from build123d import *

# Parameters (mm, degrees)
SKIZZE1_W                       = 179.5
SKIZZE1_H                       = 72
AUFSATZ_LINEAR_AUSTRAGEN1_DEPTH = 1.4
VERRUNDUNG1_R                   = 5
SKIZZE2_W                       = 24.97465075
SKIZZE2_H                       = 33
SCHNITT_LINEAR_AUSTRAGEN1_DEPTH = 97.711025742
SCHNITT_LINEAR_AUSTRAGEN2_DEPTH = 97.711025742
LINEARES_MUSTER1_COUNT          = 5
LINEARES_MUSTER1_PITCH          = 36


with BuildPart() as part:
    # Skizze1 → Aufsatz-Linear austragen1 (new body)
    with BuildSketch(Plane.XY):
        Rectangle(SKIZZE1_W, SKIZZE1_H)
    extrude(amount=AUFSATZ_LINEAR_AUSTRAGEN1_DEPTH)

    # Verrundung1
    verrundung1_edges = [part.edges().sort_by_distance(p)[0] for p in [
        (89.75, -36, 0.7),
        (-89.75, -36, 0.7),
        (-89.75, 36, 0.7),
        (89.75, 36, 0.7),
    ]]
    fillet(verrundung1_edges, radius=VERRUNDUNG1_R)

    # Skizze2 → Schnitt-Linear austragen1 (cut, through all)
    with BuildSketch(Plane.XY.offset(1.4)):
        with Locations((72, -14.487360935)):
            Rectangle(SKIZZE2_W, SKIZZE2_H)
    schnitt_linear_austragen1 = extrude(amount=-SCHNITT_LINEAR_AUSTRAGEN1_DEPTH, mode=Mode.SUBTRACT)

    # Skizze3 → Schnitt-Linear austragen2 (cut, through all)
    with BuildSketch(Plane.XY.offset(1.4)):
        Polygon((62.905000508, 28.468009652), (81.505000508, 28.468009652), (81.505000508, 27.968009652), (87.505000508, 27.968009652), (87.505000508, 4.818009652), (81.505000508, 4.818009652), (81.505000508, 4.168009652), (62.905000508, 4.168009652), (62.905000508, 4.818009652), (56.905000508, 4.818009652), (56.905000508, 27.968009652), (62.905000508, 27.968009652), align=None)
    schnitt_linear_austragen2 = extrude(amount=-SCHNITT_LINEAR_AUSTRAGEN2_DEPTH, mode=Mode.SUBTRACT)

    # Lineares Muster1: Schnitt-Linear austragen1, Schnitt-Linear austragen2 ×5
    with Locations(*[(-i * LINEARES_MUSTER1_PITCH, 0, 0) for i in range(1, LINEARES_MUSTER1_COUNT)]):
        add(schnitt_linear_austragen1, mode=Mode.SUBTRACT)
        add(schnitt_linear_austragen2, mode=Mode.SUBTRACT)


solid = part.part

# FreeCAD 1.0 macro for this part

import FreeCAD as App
import Part
import Sketcher

V = App.Vector


def edges_at(feature, points):
    """Names of the edges that pass closest to the given points."""
    edges = feature.Shape.Edges
    near = lambda p: min(range(len(edges)), key=lambda i: edges[i].distToShape(Part.Vertex(*p))[0])
    return sorted({f"Edge{near(p) + 1}" for p in points})


def add_polygon(sketch, points):
    """Adds a closed chain of lines whose ends are joined by coincident constraints."""
    first, n = sketch.GeometryCount, len(points)
    for a, b in zip(points, points[1:] + points[:1]):
        sketch.addGeometry(Part.LineSegment(App.Vector(*a, 0), App.Vector(*b, 0)), False)
    for i in range(n):
        sketch.addConstraint(Sketcher.Constraint("Coincident", first + i, 2, first + (i + 1) % n, 1))

doc = App.newDocument("Part")
body = doc.addObject("PartDesign::Body", "Body")

# Sketch on XY plane
sketch1 = doc.addObject("Sketcher::SketchObject", "Sketch")
body.addObject(sketch1)
sketch1.AttachmentSupport = (doc.XY_Plane, [""])
sketch1.MapMode = "FlatFace"
add_polygon(sketch1, [(-89.75, 36), (-89.75, -36), (89.75, -36), (89.75, 36)])  # lines 0-3
sketch1.addConstraint(Sketcher.Constraint("Vertical", 0))
sketch1.addConstraint(Sketcher.Constraint("Horizontal", 1))
sketch1.addConstraint(Sketcher.Constraint("Vertical", 2))
sketch1.addConstraint(Sketcher.Constraint("Horizontal", 3))
sketch1.addConstraint(Sketcher.Constraint("Symmetric", 0, 2, 2, 2, -1, 1))
sketch1.addConstraint(Sketcher.Constraint("DistanceY", 0, 2, 0, 1, 72.0))
sketch1.addConstraint(Sketcher.Constraint("DistanceX", 1, 1, 1, 2, 179.5))
pad1 = doc.addObject("PartDesign::Pad", "Pad")
body.addObject(pad1)
pad1.Profile = sketch1
pad1.Length = 1.4
doc.recompute()

fillet = doc.addObject("PartDesign::Fillet", "Fillet")
body.addObject(fillet)
fillet.Base = (pad1, edges_at(pad1, [
    (89.75, -36, 0.7),
    (-89.75, -36, 0.7),
    (-89.75, 36, 0.7),
    (89.75, 36, 0.7),
]))
fillet.Radius = 5

# Sketch on XY plane
sketch2 = doc.addObject("Sketcher::SketchObject", "Sketch001")
body.addObject(sketch2)
sketch2.AttachmentSupport = (doc.XY_Plane, [""])
sketch2.MapMode = "FlatFace"
sketch2.AttachmentOffset = App.Placement(V(0, 0, 1.4), App.Rotation())
add_polygon(sketch2, [(59.512675, 2.012639), (59.512675, -30.987361), (84.487325, -30.987361), (84.487325, 2.012639)])  # lines 0-3
sketch2.addConstraint(Sketcher.Constraint("Vertical", 0))
sketch2.addConstraint(Sketcher.Constraint("Horizontal", 1))
sketch2.addConstraint(Sketcher.Constraint("Vertical", 2))
sketch2.addConstraint(Sketcher.Constraint("Horizontal", 3))
sketch2.addConstraint(Sketcher.Constraint("DistanceY", 0, 2, 0, 1, 33.0))
sketch2.addConstraint(Sketcher.Constraint("DistanceX", 1, 1, 1, 2, 24.974651))
sketch2.addConstraint(Sketcher.Constraint("DistanceY", 0, 2, -1, 1, 30.987361))
sketch2.addConstraint(Sketcher.Constraint("DistanceX", -1, 1, 0, 2, 59.512675))
pocket1 = doc.addObject("PartDesign::Pocket", "Pocket")
body.addObject(pocket1)
pocket1.Profile = sketch2
pocket1.Type = "ThroughAll"

# Sketch on XY plane
sketch3 = doc.addObject("Sketcher::SketchObject", "Sketch002")
body.addObject(sketch3)
sketch3.AttachmentSupport = (doc.XY_Plane, [""])
sketch3.MapMode = "FlatFace"
sketch3.AttachmentOffset = App.Placement(V(0, 0, 1.4), App.Rotation())
add_polygon(sketch3, [(81.505001, 28.46801), (62.905001, 28.46801), (62.905001, 27.96801), (56.905001, 27.96801), (56.905001, 4.81801), (62.905001, 4.81801), (62.905001, 4.16801), (81.505001, 4.16801), (81.505001, 4.81801), (87.505001, 4.81801), (87.505001, 27.96801), (81.505001, 27.96801)])  # lines 0-11
sketch3.addConstraint(Sketcher.Constraint("Horizontal", 0))
sketch3.addConstraint(Sketcher.Constraint("Vertical", 1))
sketch3.addConstraint(Sketcher.Constraint("Horizontal", 2))
sketch3.addConstraint(Sketcher.Constraint("Vertical", 3))
sketch3.addConstraint(Sketcher.Constraint("Horizontal", 4))
sketch3.addConstraint(Sketcher.Constraint("Vertical", 5))
sketch3.addConstraint(Sketcher.Constraint("Horizontal", 6))
sketch3.addConstraint(Sketcher.Constraint("Vertical", 7))
sketch3.addConstraint(Sketcher.Constraint("Horizontal", 8))
sketch3.addConstraint(Sketcher.Constraint("Vertical", 9))
sketch3.addConstraint(Sketcher.Constraint("Horizontal", 10))
sketch3.addConstraint(Sketcher.Constraint("Vertical", 11))
sketch3.addConstraint(Sketcher.Constraint("Horizontal", 4, 2, 7, 2))
sketch3.addConstraint(Sketcher.Constraint("Horizontal", 2, 2, 9, 2))
sketch3.addConstraint(Sketcher.Constraint("Vertical", 1, 2, 4, 2))
sketch3.addConstraint(Sketcher.Constraint("Vertical", 7, 2, 10, 2))
sketch3.addConstraint(Sketcher.Constraint("Equal", 4, 8))
sketch3.addConstraint(Sketcher.Constraint("DistanceX", 2, 2, 2, 1, 6.0))
sketch3.addConstraint(Sketcher.Constraint("DistanceX", 0, 2, 0, 1, 18.6))
sketch3.addConstraint(Sketcher.Constraint("DistanceY", 1, 2, 1, 1, 0.5))
sketch3.addConstraint(Sketcher.Constraint("DistanceY", 3, 2, 3, 1, 23.15))
sketch3.addConstraint(Sketcher.Constraint("DistanceY", 5, 2, 5, 1, 0.65))
sketch3.addConstraint(Sketcher.Constraint("DistanceX", -1, 1, 0, 2, 62.905001))
sketch3.addConstraint(Sketcher.Constraint("DistanceY", -1, 1, 0, 2, 28.46801))
pocket2 = doc.addObject("PartDesign::Pocket", "Pocket001")
body.addObject(pocket2)
pocket2.Profile = sketch3
pocket2.Type = "ThroughAll"
doc.recompute()

linearpattern = doc.addObject("PartDesign::LinearPattern", "LinearPattern")
body.addObject(linearpattern)
linearpattern.Originals = [pocket1, pocket2]
linearpattern.Direction = (doc.X_Axis, [""])
linearpattern.Mode = "offset"
linearpattern.Offset = 36
linearpattern.Occurrences = 5
linearpattern.Reversed = True
body.Tip = linearpattern

doc.recompute()
